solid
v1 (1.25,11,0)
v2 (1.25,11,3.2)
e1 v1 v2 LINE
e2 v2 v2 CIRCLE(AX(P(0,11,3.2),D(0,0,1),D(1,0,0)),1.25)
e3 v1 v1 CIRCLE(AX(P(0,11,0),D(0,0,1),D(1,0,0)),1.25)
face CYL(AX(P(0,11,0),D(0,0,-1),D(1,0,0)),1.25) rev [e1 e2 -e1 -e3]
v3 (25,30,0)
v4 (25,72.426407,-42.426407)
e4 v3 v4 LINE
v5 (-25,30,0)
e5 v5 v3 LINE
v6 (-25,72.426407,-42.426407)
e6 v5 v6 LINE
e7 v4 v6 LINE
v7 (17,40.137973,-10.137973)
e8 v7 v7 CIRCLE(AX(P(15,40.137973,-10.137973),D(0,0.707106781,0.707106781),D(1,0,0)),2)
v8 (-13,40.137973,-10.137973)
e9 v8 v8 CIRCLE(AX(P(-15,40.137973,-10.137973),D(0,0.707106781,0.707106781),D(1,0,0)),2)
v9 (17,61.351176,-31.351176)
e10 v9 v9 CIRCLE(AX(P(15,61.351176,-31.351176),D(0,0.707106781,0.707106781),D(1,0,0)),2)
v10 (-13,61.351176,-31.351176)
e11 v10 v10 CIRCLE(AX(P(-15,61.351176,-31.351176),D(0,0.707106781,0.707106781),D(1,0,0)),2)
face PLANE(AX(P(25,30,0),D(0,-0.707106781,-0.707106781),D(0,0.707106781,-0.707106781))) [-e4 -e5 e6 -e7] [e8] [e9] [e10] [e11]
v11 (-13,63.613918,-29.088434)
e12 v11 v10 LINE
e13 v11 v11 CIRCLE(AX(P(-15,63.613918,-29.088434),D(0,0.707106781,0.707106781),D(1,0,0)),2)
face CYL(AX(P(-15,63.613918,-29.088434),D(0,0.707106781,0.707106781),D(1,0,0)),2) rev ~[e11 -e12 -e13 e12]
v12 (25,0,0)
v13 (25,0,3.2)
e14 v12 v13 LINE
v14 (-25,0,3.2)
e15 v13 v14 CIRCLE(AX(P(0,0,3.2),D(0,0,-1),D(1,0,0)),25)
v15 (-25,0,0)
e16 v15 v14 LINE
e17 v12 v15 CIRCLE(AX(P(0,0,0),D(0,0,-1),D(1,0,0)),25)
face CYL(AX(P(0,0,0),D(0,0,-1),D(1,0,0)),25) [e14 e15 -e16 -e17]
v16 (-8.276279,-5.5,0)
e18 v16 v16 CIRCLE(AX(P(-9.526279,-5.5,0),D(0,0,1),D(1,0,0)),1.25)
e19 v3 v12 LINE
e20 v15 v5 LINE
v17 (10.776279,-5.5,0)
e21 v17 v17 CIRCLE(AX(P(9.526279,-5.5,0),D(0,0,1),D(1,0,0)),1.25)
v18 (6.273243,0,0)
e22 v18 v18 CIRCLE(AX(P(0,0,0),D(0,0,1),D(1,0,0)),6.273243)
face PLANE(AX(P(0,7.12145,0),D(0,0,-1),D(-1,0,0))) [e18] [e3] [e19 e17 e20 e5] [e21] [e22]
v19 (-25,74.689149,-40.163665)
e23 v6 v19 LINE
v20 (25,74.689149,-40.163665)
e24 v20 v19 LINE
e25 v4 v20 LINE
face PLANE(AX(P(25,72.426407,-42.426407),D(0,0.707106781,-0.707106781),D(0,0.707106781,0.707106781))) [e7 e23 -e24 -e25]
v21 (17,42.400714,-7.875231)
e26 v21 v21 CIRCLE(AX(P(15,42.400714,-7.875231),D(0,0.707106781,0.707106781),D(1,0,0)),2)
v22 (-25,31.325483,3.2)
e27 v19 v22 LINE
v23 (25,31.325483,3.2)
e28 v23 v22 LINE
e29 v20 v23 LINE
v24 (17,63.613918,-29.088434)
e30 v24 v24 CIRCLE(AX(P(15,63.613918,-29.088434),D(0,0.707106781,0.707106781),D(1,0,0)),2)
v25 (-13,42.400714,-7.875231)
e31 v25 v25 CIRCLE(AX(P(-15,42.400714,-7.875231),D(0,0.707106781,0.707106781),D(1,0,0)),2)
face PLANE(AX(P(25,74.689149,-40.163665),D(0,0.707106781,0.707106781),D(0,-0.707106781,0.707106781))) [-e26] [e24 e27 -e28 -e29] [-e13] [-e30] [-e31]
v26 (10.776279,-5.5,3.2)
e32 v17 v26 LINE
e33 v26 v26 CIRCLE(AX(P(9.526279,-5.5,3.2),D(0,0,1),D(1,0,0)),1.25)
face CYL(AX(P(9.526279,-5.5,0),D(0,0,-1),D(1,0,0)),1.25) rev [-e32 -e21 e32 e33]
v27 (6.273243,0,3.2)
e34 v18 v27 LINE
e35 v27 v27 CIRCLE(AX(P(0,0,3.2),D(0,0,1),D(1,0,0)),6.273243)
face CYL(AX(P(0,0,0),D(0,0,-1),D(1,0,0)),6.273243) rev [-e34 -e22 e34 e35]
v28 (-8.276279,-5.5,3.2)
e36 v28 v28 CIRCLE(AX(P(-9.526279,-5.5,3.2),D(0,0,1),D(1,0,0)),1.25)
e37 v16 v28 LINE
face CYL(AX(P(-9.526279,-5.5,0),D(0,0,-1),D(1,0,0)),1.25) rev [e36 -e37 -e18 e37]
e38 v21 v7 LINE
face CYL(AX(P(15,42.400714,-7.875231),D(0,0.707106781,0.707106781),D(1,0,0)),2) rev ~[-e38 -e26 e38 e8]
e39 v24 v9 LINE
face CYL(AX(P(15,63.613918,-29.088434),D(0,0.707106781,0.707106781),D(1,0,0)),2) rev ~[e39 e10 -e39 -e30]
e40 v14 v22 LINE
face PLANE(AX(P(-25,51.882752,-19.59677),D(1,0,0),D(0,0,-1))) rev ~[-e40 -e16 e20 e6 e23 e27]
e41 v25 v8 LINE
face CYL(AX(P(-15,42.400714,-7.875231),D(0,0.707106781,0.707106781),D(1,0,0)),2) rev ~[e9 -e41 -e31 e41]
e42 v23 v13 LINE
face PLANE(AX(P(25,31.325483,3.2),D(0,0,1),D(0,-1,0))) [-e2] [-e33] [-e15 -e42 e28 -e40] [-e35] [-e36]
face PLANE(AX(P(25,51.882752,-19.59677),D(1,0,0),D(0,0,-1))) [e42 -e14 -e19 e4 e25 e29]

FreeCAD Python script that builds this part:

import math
import FreeCAD as App
import Part
import Sketcher

V = App.Vector
Q = App.Units.Quantity


def add_polygon(sketch, points):
    """Adds a closed chain of lines whose ends are joined by coincident constraints."""
    first, n = sketch.GeometryCount, len(points)
    for a, b in zip(points, points[1:] + points[:1]):
        sketch.addGeometry(Part.LineSegment(App.Vector(*a, 0), App.Vector(*b, 0)), False)
    for i in range(n):
        sketch.addConstraint(Sketcher.Constraint("Coincident", first + i, 2, first + (i + 1) % n, 1))

doc = App.newDocument("Part")
params = doc.addObject("Spreadsheet::Sheet", "Params")
for row, (alias, value) in enumerate([
    ("sketch1_radius", "25 mm"),
    ("sketch1_diameter", "2.5 mm"),
    ("sketch1_height", "30 mm"),
    ("pad1_length", "3.2 mm"),
    ("sketch2_length", "60 mm"),
    ("sketch2_height", "3.2 mm"),
    ("sketch2_length2", "3.2 mm"),
    ("pad2_length", "50 mm"),
    ("sketch3_diameter", "4 mm"),
    ("sketch4_diameter", "4 mm"),
    ("sketch5_diameter", "4 mm"),
    ("sketch6_diameter", "4 mm"),
], start=1):
    params.set(f"A{row}", alias)
    params.set(f"B{row}", "=" + value)
    params.setAlias(f"B{row}", alias)

body = doc.addObject("PartDesign::Body", "Body")

# Sketch on XY plane
sketch1 = doc.addObject("Sketcher::SketchObject", "Sketch")
body.addObject(sketch1)
sketch1.AttachmentSupport = (doc.XY_Plane, [""])
sketch1.MapMode = "FlatFace"
sketch1.addGeometry(Part.LineSegment(V(-25, 30, 0), V(-25, 0, 0)), False)
sketch1.addGeometry(Part.ArcOfCircle(Part.Circle(V(0, 0, 0), V(0, 0, 1), 25), math.radians(180), math.radians(360)), False)
sketch1.addGeometry(Part.LineSegment(V(25, 0, 0), V(25, 30, 0)), False)
sketch1.addGeometry(Part.LineSegment(V(25, 30, 0), V(-25, 30, 0)), False)
sketch1.addGeometry(Part.Circle(V(9.526279, -5.5, 0), V(0, 0, 1), 1.25), False)
sketch1.addGeometry(Part.Circle(V(-9.526279, -5.5, 0), V(0, 0, 1), 1.25), False)
sketch1.addGeometry(Part.Circle(V(0, 0, 0), V(0, 0, 1), 6.273243), False)
sketch1.addGeometry(Part.Circle(V(0, 11, 0), V(0, 0, 1), 1.25), False)
sketch1.addConstraint(Sketcher.Constraint("Tangent", 0, 2, 1, 1))
sketch1.addConstraint(Sketcher.Constraint("Tangent", 1, 2, 2, 1))
sketch1.addConstraint(Sketcher.Constraint("Coincident", 2, 2, 3, 1))
sketch1.addConstraint(Sketcher.Constraint("Coincident", 3, 2, 0, 1))
sketch1.addConstraint(Sketcher.Constraint("Vertical", 0))
sketch1.addConstraint(Sketcher.Constraint("Vertical", 2))
sketch1.addConstraint(Sketcher.Constraint("Horizontal", 3))
sketch1.addConstraint(Sketcher.Constraint("Coincident", 1, 3, -1, 1))
sketch1.addConstraint(Sketcher.Constraint("Coincident", 6, 3, -1, 1))
sketch1.addConstraint(Sketcher.Constraint("Equal", 4, 5))
sketch1.addConstraint(Sketcher.Constraint("Equal", 5, 7))
sketch1.addConstraint(Sketcher.Constraint("Symmetric", 4, 3, 5, 3, -2))
sketch1.addConstraint(Sketcher.Constraint("PointOnObject", 7, 3, -2))
sketch1.addConstraint(Sketcher.Constraint("Radius", 1, 25.0))
sketch1.addConstraint(Sketcher.Constraint("Diameter", 4, 2.5))
sketch1.addConstraint(Sketcher.Constraint("DistanceY", 0, 2, 0, 1, 30.0))
sketch1.addConstraint(Sketcher.Constraint("DistanceY", -1, 1, 7, 3, 11.0))
sketch1.addConstraint(Sketcher.Constraint("DistanceY", 4, 3, -1, 1, 5.5))
sketch1.addConstraint(Sketcher.Constraint("Diameter", 6, 12.546486))
sketch1.addConstraint(Sketcher.Constraint("DistanceX", -1, 1, 4, 3, 9.526279))
sketch1.setExpression("Constraints[13]", "Params.sketch1_radius")
sketch1.setExpression("Constraints[14]", "Params.sketch1_diameter")
sketch1.setExpression("Constraints[15]", "Params.sketch1_height")
pad1 = doc.addObject("PartDesign::Pad", "Pad")
body.addObject(pad1)
pad1.Profile = sketch1
pad1.setExpression("Length", "Params.pad1_length")

# Sketch on YZ plane
sketch2 = doc.addObject("Sketcher::SketchObject", "Sketch001")
body.addObject(sketch2)
sketch2.AttachmentSupport = (doc.YZ_Plane, [""])
sketch2.MapMode = "FlatFace"
sketch2.AttachmentOffset = App.Placement(V(0, 0, 25), App.Rotation())
add_polygon(sketch2, [(30, 0), (72.426407, -42.426407), (74.689149, -40.163665), (31.325483, 3.2), (30, 3.2)])  # lines 0-4
sketch2.addConstraint(Sketcher.Constraint("Horizontal", 3))
sketch2.addConstraint(Sketcher.Constraint("Vertical", 4))
sketch2.addConstraint(Sketcher.Constraint("PointOnObject", 4, 2, -1))
sketch2.addConstraint(Sketcher.Constraint("Perpendicular", 0, 1))
sketch2.addConstraint(Sketcher.Constraint("Perpendicular", 1, 2))
sketch2.addConstraint(Sketcher.Constraint("Angle", 0, Q("-45 deg")))
sketch2.addConstraint(Sketcher.Constraint("Distance", 0, 60.0))
sketch2.addConstraint(Sketcher.Constraint("DistanceY", 4, 2, 4, 1, 3.2))
sketch2.addConstraint(Sketcher.Constraint("DistanceX", -1, 1, 3, 2, 30.0))
sketch2.addConstraint(Sketcher.Constraint("Distance", 1, 3.2))
sketch2.setExpression("Constraints[11]", "Params.sketch2_length")
sketch2.setExpression("Constraints[12]", "Params.sketch2_height")
sketch2.setExpression("Constraints[14]", "Params.sketch2_length2")
pad2 = doc.addObject("PartDesign::Pad", "Pad001")
body.addObject(pad2)
pad2.Profile = sketch2
pad2.setExpression("Length", "Params.pad2_length")
pad2.Reversed = True

# Sketch on an angled plane
sketch3 = doc.addObject("Sketcher::SketchObject", "Sketch002")
body.addObject(sketch3)
sketch3.Placement = App.Placement(V(0, 17.262742, 17.262742), App.Rotation(V(1, 0, 0), V(0, 0.707106781, -0.707106781), V(0, 0.707106781, 0.707106781), "ZXY"))
sketch3.addGeometry(Part.Circle(V(15, 65.550462, 0), V(0, 0, 1), 2), False)
sketch3.addConstraint(Sketcher.Constraint("Diameter", 0, 4.0))
sketch3.addConstraint(Sketcher.Constraint("DistanceX", -1, 1, 0, 3, 15.0))
sketch3.addConstraint(Sketcher.Constraint("DistanceY", -1, 1, 0, 3, 65.550462))
sketch3.setExpression("Constraints[0]", "Params.sketch3_diameter")
pocket1 = doc.addObject("PartDesign::Pocket", "Pocket")
body.addObject(pocket1)
pocket1.Profile = sketch3
pocket1.Type = "UpToFirst"

# Sketch on an angled plane
sketch4 = doc.addObject("Sketcher::SketchObject", "Sketch003")
body.addObject(sketch4)
sketch4.Placement = App.Placement(V(0, 17.262742, 17.262742), App.Rotation(V(1, 0, 0), V(0, 0.707106781, -0.707106781), V(0, 0.707106781, 0.707106781), "ZXY"))
sketch4.addGeometry(Part.Circle(V(15, 35.550462, 0), V(0, 0, 1), 2), False)
sketch4.addConstraint(Sketcher.Constraint("Diameter", 0, 4.0))
sketch4.addConstraint(Sketcher.Constraint("DistanceX", -1, 1, 0, 3, 15.0))
sketch4.addConstraint(Sketcher.Constraint("DistanceY", -1, 1, 0, 3, 35.550462))
sketch4.setExpression("Constraints[0]", "Params.sketch4_diameter")
pocket2 = doc.addObject("PartDesign::Pocket", "Pocket001")
body.addObject(pocket2)
pocket2.Profile = sketch4
pocket2.Type = "UpToFirst"

# Sketch on an angled plane
sketch5 = doc.addObject("Sketcher::SketchObject", "Sketch004")
body.addObject(sketch5)
sketch5.Placement = App.Placement(V(0, 17.262742, 17.262742), App.Rotation(V(1, 0, 0), V(0, 0.707106781, -0.707106781), V(0, 0.707106781, 0.707106781), "ZXY"))
sketch5.addGeometry(Part.Circle(V(-15, 65.550462, 0), V(0, 0, 1), 2), False)
sketch5.addConstraint(Sketcher.Constraint("Diameter", 0, 4.0))
sketch5.addConstraint(Sketcher.Constraint("DistanceX", 0, 3, -1, 1, 15.0))
sketch5.addConstraint(Sketcher.Constraint("DistanceY", -1, 1, 0, 3, 65.550462))
sketch5.setExpression("Constraints[0]", "Params.sketch5_diameter")
pocket3 = doc.addObject("PartDesign::Pocket", "Pocket002")
body.addObject(pocket3)
pocket3.Profile = sketch5
pocket3.Type = "UpToFirst"

# Sketch on an angled plane
sketch6 = doc.addObject("Sketcher::SketchObject", "Sketch005")
body.addObject(sketch6)
sketch6.Placement = App.Placement(V(0, 17.262742, 17.262742), App.Rotation(V(1, 0, 0), V(0, 0.707106781, -0.707106781), V(0, 0.707106781, 0.707106781), "ZXY"))
sketch6.addGeometry(Part.Circle(V(-15, 35.550462, 0), V(0, 0, 1), 2), False)
sketch6.addConstraint(Sketcher.Constraint("Diameter", 0, 4.0))
sketch6.addConstraint(Sketcher.Constraint("DistanceX", 0, 3, -1, 1, 15.0))
sketch6.addConstraint(Sketcher.Constraint("DistanceY", -1, 1, 0, 3, 35.550462))
sketch6.setExpression("Constraints[0]", "Params.sketch6_diameter")
pocket4 = doc.addObject("PartDesign::Pocket", "Pocket003")
body.addObject(pocket4)
pocket4.Profile = sketch6
pocket4.Type = "UpToFirst"

doc.recompute()
